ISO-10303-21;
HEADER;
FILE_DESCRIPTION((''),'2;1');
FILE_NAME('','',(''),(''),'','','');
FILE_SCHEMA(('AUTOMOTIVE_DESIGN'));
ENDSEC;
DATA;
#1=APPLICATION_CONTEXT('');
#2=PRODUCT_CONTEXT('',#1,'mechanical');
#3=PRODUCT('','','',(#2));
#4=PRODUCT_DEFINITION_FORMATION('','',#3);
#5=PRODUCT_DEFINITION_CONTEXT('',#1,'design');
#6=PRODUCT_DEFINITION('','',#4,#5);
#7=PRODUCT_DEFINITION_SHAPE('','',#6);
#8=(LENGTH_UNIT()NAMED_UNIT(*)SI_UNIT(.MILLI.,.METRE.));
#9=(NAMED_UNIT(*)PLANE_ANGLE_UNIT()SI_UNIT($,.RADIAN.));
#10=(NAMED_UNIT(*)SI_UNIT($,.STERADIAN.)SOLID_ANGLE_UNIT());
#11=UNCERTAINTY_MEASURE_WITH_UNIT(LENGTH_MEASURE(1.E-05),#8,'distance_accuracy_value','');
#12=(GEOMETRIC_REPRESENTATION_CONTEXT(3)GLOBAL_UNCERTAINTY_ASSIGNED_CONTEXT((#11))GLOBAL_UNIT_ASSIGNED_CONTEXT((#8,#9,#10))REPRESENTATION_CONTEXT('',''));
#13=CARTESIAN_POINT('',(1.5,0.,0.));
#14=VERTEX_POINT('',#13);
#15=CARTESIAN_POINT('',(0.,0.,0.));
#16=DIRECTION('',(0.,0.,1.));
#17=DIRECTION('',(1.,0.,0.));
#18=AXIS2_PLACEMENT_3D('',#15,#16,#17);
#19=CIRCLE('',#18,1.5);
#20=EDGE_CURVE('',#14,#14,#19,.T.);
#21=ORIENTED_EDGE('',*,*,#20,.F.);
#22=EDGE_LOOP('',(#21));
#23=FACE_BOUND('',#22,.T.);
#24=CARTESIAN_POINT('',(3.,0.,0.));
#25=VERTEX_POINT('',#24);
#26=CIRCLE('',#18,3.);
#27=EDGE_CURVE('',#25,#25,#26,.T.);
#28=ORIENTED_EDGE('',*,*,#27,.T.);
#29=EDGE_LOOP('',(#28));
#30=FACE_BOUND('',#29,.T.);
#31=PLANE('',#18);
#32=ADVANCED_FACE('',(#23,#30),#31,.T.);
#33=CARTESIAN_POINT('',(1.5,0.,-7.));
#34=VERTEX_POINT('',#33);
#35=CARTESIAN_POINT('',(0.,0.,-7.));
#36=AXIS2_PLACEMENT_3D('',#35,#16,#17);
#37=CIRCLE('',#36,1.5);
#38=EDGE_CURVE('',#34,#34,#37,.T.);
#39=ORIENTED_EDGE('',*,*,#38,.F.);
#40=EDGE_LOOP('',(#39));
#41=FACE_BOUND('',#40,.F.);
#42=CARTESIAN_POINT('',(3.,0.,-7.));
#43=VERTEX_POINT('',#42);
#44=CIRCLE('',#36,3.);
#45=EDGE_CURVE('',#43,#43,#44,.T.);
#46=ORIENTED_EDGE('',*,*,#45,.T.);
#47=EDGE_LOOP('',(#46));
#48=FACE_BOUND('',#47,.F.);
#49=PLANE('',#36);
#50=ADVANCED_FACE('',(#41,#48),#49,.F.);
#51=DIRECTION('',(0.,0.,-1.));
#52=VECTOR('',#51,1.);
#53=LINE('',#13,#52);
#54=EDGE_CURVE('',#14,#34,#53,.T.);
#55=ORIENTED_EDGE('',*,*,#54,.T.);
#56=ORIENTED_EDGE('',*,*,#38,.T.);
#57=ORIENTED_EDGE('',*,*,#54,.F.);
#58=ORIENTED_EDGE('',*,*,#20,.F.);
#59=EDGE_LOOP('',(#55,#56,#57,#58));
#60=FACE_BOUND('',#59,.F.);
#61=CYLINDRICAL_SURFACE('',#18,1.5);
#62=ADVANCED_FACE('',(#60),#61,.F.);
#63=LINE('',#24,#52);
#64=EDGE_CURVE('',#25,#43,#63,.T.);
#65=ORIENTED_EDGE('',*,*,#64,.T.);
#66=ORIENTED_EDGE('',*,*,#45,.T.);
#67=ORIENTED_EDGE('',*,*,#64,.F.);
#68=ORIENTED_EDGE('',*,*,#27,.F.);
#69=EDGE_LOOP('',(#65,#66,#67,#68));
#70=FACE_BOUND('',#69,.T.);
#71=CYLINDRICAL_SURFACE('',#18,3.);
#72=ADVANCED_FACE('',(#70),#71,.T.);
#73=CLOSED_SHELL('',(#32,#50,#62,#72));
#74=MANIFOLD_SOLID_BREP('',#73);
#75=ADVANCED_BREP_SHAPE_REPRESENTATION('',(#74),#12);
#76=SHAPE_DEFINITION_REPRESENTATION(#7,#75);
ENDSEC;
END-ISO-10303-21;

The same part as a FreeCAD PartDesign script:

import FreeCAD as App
import Part
import Sketcher

V = App.Vector

doc = App.newDocument("Part")
body = doc.addObject("PartDesign::Body", "Body")

# Sketch on XY plane
sketch1 = body.newObject("Sketcher::SketchObject", "Sketch")
sketch1.AttachmentSupport = (doc.getObject("XY_Plane"), [""])
sketch1.MapMode = "FlatFace"
sketch1.addGeometry([
    Part.Circle(V(0, 0, 0), V(0, 0, 1), 3),
    Part.Circle(V(0, 0, 0), V(0, 0, 1), 1.5),
], False)
sketch1.addConstraint([
    Sketcher.Constraint("Coincident", 0, 3, -1, 1),
    Sketcher.Constraint("Coincident", 1, 3, -1, 1),
    Sketcher.Constraint("Diameter", 0, 6.0),
    Sketcher.Constraint("Diameter", 1, 3.0),
])
pad1 = body.newObject("PartDesign::Pad", "Pad")
pad1.Profile = sketch1
pad1.Length = 7
pad1.Reversed = True

doc.recompute()
